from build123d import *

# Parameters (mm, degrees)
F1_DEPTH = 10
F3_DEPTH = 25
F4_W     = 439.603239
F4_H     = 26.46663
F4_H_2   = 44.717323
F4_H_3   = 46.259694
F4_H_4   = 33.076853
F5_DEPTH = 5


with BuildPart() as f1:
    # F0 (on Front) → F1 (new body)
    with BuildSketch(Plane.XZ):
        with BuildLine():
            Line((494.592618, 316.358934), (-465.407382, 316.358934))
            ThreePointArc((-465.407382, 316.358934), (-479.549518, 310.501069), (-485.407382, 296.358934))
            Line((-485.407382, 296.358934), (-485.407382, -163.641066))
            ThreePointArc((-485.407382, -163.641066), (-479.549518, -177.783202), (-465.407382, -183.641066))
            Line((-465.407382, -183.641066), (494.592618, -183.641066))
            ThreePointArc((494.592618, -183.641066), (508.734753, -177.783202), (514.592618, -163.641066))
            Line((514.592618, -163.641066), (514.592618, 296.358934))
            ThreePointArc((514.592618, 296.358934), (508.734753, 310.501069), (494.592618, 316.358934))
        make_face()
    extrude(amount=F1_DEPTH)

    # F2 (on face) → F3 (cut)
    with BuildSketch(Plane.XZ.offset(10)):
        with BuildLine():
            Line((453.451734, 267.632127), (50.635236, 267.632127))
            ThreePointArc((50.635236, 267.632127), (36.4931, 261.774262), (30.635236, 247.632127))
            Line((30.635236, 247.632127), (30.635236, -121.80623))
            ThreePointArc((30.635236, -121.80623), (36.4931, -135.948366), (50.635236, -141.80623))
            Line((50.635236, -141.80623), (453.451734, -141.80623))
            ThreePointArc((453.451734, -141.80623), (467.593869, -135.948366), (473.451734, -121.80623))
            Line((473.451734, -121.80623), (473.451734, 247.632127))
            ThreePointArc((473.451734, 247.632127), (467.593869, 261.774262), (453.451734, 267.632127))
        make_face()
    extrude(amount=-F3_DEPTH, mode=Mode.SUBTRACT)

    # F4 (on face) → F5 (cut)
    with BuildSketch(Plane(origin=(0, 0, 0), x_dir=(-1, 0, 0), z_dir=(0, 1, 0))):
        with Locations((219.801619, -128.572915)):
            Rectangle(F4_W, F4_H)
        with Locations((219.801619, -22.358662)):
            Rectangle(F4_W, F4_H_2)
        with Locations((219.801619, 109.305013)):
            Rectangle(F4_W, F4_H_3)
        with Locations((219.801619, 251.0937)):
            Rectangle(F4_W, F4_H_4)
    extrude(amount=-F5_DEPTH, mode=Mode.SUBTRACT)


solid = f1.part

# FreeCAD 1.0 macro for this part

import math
import FreeCAD as App
import Part
import Sketcher
from FreeCAD import Vector

doc = App.newDocument("Part")
body = doc.addObject("PartDesign::Body", "Body")

# Sketch on XZ plane
sketch1 = body.newObject("Sketcher::SketchObject", "Sketch")
sketch1.AttachmentSupport = (doc.getObject("XZ_Plane"), [""])
sketch1.MapMode = "FlatFace"
sketch1.addGeometry(Part.LineSegment(Vector(494.592618, 316.358934, 0), Vector(-465.407382, 316.358934, 0)), False)
sketch1.addGeometry(Part.ArcOfCircle(Part.Circle(Vector(-465.407382, 296.358934, 0), Vector(0, 0, 1), 20), math.radians(90.000001), math.radians(179.999999)), False)
sketch1.addGeometry(Part.LineSegment(Vector(-485.407382, 296.358934, 0), Vector(-485.407382, -163.641066, 0)), False)
sketch1.addGeometry(Part.ArcOfCircle(Part.Circle(Vector(-465.407383, -163.641067, 0), Vector(0, 0, 1), 19.999999), math.radians(179.999996), math.radians(270.000004)), False)
sketch1.addGeometry(Part.LineSegment(Vector(-465.407382, -183.641066, 0), Vector(494.592618, -183.641066, 0)), False)
sketch1.addGeometry(Part.ArcOfCircle(Part.Circle(Vector(494.592618, -163.641066, 0), Vector(0, 0, 1), 20), math.radians(-89.999999), math.radians(-0.000001)), False)
sketch1.addGeometry(Part.LineSegment(Vector(514.592618, -163.641066, 0), Vector(514.592618, 296.358934, 0)), False)
sketch1.addGeometry(Part.ArcOfCircle(Part.Circle(Vector(494.592616, 296.358932, 0), Vector(0, 0, 1), 20.000002), math.radians(0.000006), math.radians(89.999994)), False)
sketch1.addConstraint(Sketcher.Constraint("Tangent", 0, 2, 1, 1))
sketch1.addConstraint(Sketcher.Constraint("Tangent", 1, 2, 2, 1))
sketch1.addConstraint(Sketcher.Constraint("Tangent", 2, 2, 3, 1))
sketch1.addConstraint(Sketcher.Constraint("Tangent", 3, 2, 4, 1))
sketch1.addConstraint(Sketcher.Constraint("Tangent", 4, 2, 5, 1))
sketch1.addConstraint(Sketcher.Constraint("Tangent", 5, 2, 6, 1))
sketch1.addConstraint(Sketcher.Constraint("Tangent", 6, 2, 7, 1))
sketch1.addConstraint(Sketcher.Constraint("Tangent", 7, 2, 0, 1))
sketch1.addConstraint(Sketcher.Constraint("Horizontal", 0))
sketch1.addConstraint(Sketcher.Constraint("Vertical", 2))
sketch1.addConstraint(Sketcher.Constraint("Horizontal", 4))
sketch1.addConstraint(Sketcher.Constraint("Vertical", 6))
sketch1.addConstraint(Sketcher.Constraint("Equal", 1, 3))
sketch1.addConstraint(Sketcher.Constraint("Equal", 3, 5))
sketch1.addConstraint(Sketcher.Constraint("Equal", 5, 7))
sketch1.addConstraint(Sketcher.Constraint("Radius", 1, 20.0))
sketch1.addConstraint(Sketcher.Constraint("DistanceX", 0, 2, 0, 1, 960.0))
sketch1.addConstraint(Sketcher.Constraint("DistanceY", 2, 2, 2, 1, 460.0))
sketch1.addConstraint(Sketcher.Constraint("DistanceX", 1, 3, -1, 1, 465.407382))
sketch1.addConstraint(Sketcher.Constraint("DistanceY", -1, 1, 7, 3, 296.358932))
pad1 = body.newObject("PartDesign::Pad", "Pad")
pad1.Profile = sketch1
pad1.Length = 10

# Sketch on XZ plane
sketch2 = body.newObject("Sketcher::SketchObject", "Sketch001")
sketch2.AttachmentSupport = (doc.getObject("XZ_Plane"), [""])
sketch2.MapMode = "FlatFace"
sketch2.AttachmentOffset = App.Placement(Vector(0, 0, 10), App.Rotation())
sketch2.addGeometry(Part.LineSegment(Vector(453.451734, 267.632127, 0), Vector(50.635236, 267.632127, 0)), False)
sketch2.addGeometry(Part.ArcOfCircle(Part.Circle(Vector(50.635236, 247.632127, 0), Vector(0, 0, 1), 20), math.radians(90.000001), math.radians(179.999999)), False)
sketch2.addGeometry(Part.LineSegment(Vector(30.635236, 247.632127, 0), Vector(30.635236, -121.80623, 0)), False)
sketch2.addGeometry(Part.ArcOfCircle(Part.Circle(Vector(50.635235, -121.806231, 0), Vector(0, 0, 1), 19.999999), math.radians(179.999996), math.radians(270.000004)), False)
sketch2.addGeometry(Part.LineSegment(Vector(50.635236, -141.80623, 0), Vector(453.451734, -141.80623, 0)), False)
sketch2.addGeometry(Part.ArcOfCircle(Part.Circle(Vector(453.451734, -121.80623, 0), Vector(0, 0, 1), 20), math.radians(-89.999999), math.radians(-0.000001)), False)
sketch2.addGeometry(Part.LineSegment(Vector(473.451734, -121.80623, 0), Vector(473.451734, 247.632127, 0)), False)
sketch2.addGeometry(Part.ArcOfCircle(Part.Circle(Vector(453.451732, 247.632125, 0), Vector(0, 0, 1), 20.000002), math.radians(0.000006), math.radians(89.999994)), False)
sketch2.addConstraint(Sketcher.Constraint("Tangent", 0, 2, 1, 1))
sketch2.addConstraint(Sketcher.Constraint("Tangent", 1, 2, 2, 1))
sketch2.addConstraint(Sketcher.Constraint("Tangent", 2, 2, 3, 1))
sketch2.addConstraint(Sketcher.Constraint("Tangent", 3, 2, 4, 1))
sketch2.addConstraint(Sketcher.Constraint("Tangent", 4, 2, 5, 1))
sketch2.addConstraint(Sketcher.Constraint("Tangent", 5, 2, 6, 1))
sketch2.addConstraint(Sketcher.Constraint("Tangent", 6, 2, 7, 1))
sketch2.addConstraint(Sketcher.Constraint("Tangent", 7, 2, 0, 1))
sketch2.addConstraint(Sketcher.Constraint("Horizontal", 0))
sketch2.addConstraint(Sketcher.Constraint("Vertical", 2))
sketch2.addConstraint(Sketcher.Constraint("Horizontal", 4))
sketch2.addConstraint(Sketcher.Constraint("Vertical", 6))
sketch2.addConstraint(Sketcher.Constraint("Equal", 1, 3))
sketch2.addConstraint(Sketcher.Constraint("Equal", 3, 5))
sketch2.addConstraint(Sketcher.Constraint("Equal", 5, 7))
sketch2.addConstraint(Sketcher.Constraint("Radius", 1, 20.0))
sketch2.addConstraint(Sketcher.Constraint("DistanceX", 3, 3, 5, 3, 402.816499))
sketch2.addConstraint(Sketcher.Constraint("DistanceY", 2, 2, 2, 1, 369.438357))
sketch2.addConstraint(Sketcher.Constraint("DistanceY", 3, 3, -1, 1, 121.806231))
sketch2.addConstraint(Sketcher.Constraint("DistanceX", -1, 1, 7, 3, 453.451732))
pocket1 = body.newObject("PartDesign::Pocket", "Pocket")
pocket1.Profile = sketch2
pocket1.Length = 25

# Sketch on XZ plane
sketch3 = body.newObject("Sketcher::SketchObject", "Sketch002")
sketch3.AttachmentSupport = (doc.getObject("XZ_Plane"), [""])
sketch3.MapMode = "FlatFace"
sketch3.addGeometry(Part.LineSegment(Vector(0, -115.3396, 0), Vector(0, -141.80623, 0)), False)
sketch3.addGeometry(Part.LineSegment(Vector(0, -141.80623, 0), Vector(-439.603238, -141.80623, 0)), False)
sketch3.addGeometry(Part.LineSegment(Vector(-439.603238, -141.80623, 0), Vector(-439.603238, -115.3396, 0)), False)
sketch3.addGeometry(Part.LineSegment(Vector(-439.603238, -115.3396, 0), Vector(0, -115.3396, 0)), False)
sketch3.addGeometry(Part.LineSegment(Vector(0, 0, 0), Vector(0, -44.717323, 0)), False)
sketch3.addGeometry(Part.LineSegment(Vector(0, -44.717323, 0), Vector(-439.603238, -44.717323, 0)), False)
sketch3.addGeometry(Part.LineSegment(Vector(-439.603238, -44.717323, 0), Vector(-439.603238, 0, 0)), False)
sketch3.addGeometry(Part.LineSegment(Vector(-439.603238, 0, 0), Vector(0, 0, 0)), False)
sketch3.addGeometry(Part.LineSegment(Vector(0, 132.43486, 0), Vector(0, 86.175166, 0)), False)
sketch3.addGeometry(Part.LineSegment(Vector(0, 86.175166, 0), Vector(-439.603238, 86.175166, 0)), False)
sketch3.addGeometry(Part.LineSegment(Vector(-439.603238, 86.175166, 0), Vector(-439.603238, 132.43486, 0)), False)
sketch3.addGeometry(Part.LineSegment(Vector(-439.603238, 132.43486, 0), Vector(0, 132.43486, 0)), False)
sketch3.addGeometry(Part.LineSegment(Vector(0, 267.632127, 0), Vector(0, 234.555273, 0)), False)
sketch3.addGeometry(Part.LineSegment(Vector(0, 234.555273, 0), Vector(-439.603238, 234.555273, 0)), False)
sketch3.addGeometry(Part.LineSegment(Vector(-439.603238, 234.555273, 0), Vector(-439.603238, 267.632127, 0)), False)
sketch3.addGeometry(Part.LineSegment(Vector(-439.603238, 267.632127, 0), Vector(0, 267.632127, 0)), False)
sketch3.addConstraint(Sketcher.Constraint("Coincident", 0, 2, 1, 1))
sketch3.addConstraint(Sketcher.Constraint("Coincident", 1, 2, 2, 1))
sketch3.addConstraint(Sketcher.Constraint("Coincident", 2, 2, 3, 1))
sketch3.addConstraint(Sketcher.Constraint("Coincident", 3, 2, 0, 1))
sketch3.addConstraint(Sketcher.Constraint("Coincident", 4, 2, 5, 1))
sketch3.addConstraint(Sketcher.Constraint("Coincident", 5, 2, 6, 1))
sketch3.addConstraint(Sketcher.Constraint("Coincident", 6, 2, 7, 1))
sketch3.addConstraint(Sketcher.Constraint("Coincident", 7, 2, 4, 1))
sketch3.addConstraint(Sketcher.Constraint("Coincident", 8, 2, 9, 1))
sketch3.addConstraint(Sketcher.Constraint("Coincident", 9, 2, 10, 1))
sketch3.addConstraint(Sketcher.Constraint("Coincident", 10, 2, 11, 1))
sketch3.addConstraint(Sketcher.Constraint("Coincident", 11, 2, 8, 1))
sketch3.addConstraint(Sketcher.Constraint("Coincident", 12, 2, 13, 1))
sketch3.addConstraint(Sketcher.Constraint("Coincident", 13, 2, 14, 1))
sketch3.addConstraint(Sketcher.Constraint("Coincident", 14, 2, 15, 1))
sketch3.addConstraint(Sketcher.Constraint("Coincident", 15, 2, 12, 1))
sketch3.addConstraint(Sketcher.Constraint("Vertical", 0))
sketch3.addConstraint(Sketcher.Constraint("Horizontal", 1))
sketch3.addConstraint(Sketcher.Constraint("Vertical", 2))
sketch3.addConstraint(Sketcher.Constraint("Horizontal", 3))
sketch3.addConstraint(Sketcher.Constraint("Vertical", 4))
sketch3.addConstraint(Sketcher.Constraint("Horizontal", 5))
sketch3.addConstraint(Sketcher.Constraint("Vertical", 6))
sketch3.addConstraint(Sketcher.Constraint("Horizontal", 7))
sketch3.addConstraint(Sketcher.Constraint("Vertical", 8))
sketch3.addConstraint(Sketcher.Constraint("Horizontal", 9))
sketch3.addConstraint(Sketcher.Constraint("Vertical", 10))
sketch3.addConstraint(Sketcher.Constraint("Horizontal", 11))
sketch3.addConstraint(Sketcher.Constraint("Vertical", 12))
sketch3.addConstraint(Sketcher.Constraint("Horizontal", 13))
sketch3.addConstraint(Sketcher.Constraint("Vertical", 14))
sketch3.addConstraint(Sketcher.Constraint("Horizontal", 15))
sketch3.addConstraint(Sketcher.Constraint("Coincident", 7, 2, -1, 1))
sketch3.addConstraint(Sketcher.Constraint("PointOnObject", 0, 2, -2))
sketch3.addConstraint(Sketcher.Constraint("PointOnObject", 8, 2, -2))
sketch3.addConstraint(Sketcher.Constraint("PointOnObject", 12, 2, -2))
sketch3.addConstraint(Sketcher.Constraint("Vertical", 2, 2, 5, 2))
sketch3.addConstraint(Sketcher.Constraint("Vertical", 6, 2, 9, 2))
sketch3.addConstraint(Sketcher.Constraint("Vertical", 10, 2, 13, 2))
sketch3.addConstraint(Sketcher.Constraint("DistanceX", 1, 2, 1, 1, 439.603239))
sketch3.addConstraint(Sketcher.Constraint("DistanceY", 0, 2, 0, 1, 26.46663))
sketch3.addConstraint(Sketcher.Constraint("DistanceY", 2, 2, -1, 1, 115.3396))
sketch3.addConstraint(Sketcher.Constraint("DistanceY", 4, 2, 4, 1, 44.717323))
sketch3.addConstraint(Sketcher.Constraint("DistanceY", 8, 2, 8, 1, 46.259694))
sketch3.addConstraint(Sketcher.Constraint("DistanceY", 12, 2, 12, 1, 33.076853))
sketch3.addConstraint(Sketcher.Constraint("DistanceY", -1, 1, 10, 2, 132.43486))
sketch3.addConstraint(Sketcher.Constraint("DistanceY", 9, 2, 14, 2, 181.456961))
pocket2 = body.newObject("PartDesign::Pocket", "Pocket001")
pocket2.Profile = sketch3
pocket2.Length = 5
pocket2.Reversed = True

doc.recompute()
